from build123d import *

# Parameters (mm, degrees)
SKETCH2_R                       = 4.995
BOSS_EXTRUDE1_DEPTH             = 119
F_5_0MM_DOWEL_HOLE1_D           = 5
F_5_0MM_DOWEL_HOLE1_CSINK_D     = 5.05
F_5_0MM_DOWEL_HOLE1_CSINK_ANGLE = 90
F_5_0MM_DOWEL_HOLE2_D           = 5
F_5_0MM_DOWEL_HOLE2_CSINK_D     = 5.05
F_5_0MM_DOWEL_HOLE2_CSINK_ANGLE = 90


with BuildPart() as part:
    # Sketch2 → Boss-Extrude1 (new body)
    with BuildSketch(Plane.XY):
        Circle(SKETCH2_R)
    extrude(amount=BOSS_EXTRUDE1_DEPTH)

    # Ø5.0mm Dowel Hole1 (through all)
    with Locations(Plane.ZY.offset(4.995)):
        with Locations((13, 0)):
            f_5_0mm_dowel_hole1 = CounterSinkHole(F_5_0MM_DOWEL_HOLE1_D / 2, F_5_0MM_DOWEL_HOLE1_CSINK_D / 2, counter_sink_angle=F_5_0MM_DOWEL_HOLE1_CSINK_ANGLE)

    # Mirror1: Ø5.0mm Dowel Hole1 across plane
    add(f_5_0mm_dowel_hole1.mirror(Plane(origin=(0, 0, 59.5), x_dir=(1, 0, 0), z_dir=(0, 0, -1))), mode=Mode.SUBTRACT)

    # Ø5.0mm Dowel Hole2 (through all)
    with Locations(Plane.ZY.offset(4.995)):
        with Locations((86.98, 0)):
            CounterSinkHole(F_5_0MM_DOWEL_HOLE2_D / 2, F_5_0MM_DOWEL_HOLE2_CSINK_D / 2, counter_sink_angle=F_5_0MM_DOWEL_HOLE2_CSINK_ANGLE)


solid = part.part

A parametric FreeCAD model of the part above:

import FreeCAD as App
import Part
import Sketcher

doc = App.newDocument("Part")
body = doc.addObject("PartDesign::Body", "Body")

sketch1 = body.newObject("Sketcher::SketchObject", "Sketch")
sketch1.AttachmentSupport = (doc.getObject("XY_Plane"), [""])
sketch1.MapMode = "FlatFace"
sketch1.addGeometry(Part.Circle(App.Vector(0, 0, 0), App.Vector(0, 0, 1), 5), False)
sketch1.addConstraint(Sketcher.Constraint("Coincident", 0, 3, -1, 1))
sketch1.addConstraint(Sketcher.Constraint("Diameter", 0, 9.99))
pad1 = body.newObject("PartDesign::Pad", "Pad")
pad1.Profile = sketch1
pad1.Length = 119

sketch2 = body.newObject("Sketcher::SketchObject", "Sketch001")
sketch2.AttachmentSupport = (doc.getObject("YZ_Plane"), [""])
sketch2.MapMode = "FlatFace"
sketch2.AttachmentOffset = App.Placement(App.Vector(0, 0, -4.995), App.Rotation())
sketch2.addGeometry(Part.Circle(App.Vector(0, 13, 0), App.Vector(0, 0, 1), 2.5), False)
sketch2.addConstraint(Sketcher.Constraint("PointOnObject", 0, 3, -2))
sketch2.addConstraint(Sketcher.Constraint("Diameter", 0, 5.0))
sketch2.addConstraint(Sketcher.Constraint("DistanceY", -1, 1, 0, 3, 13.0))
doc.recompute()
hole = body.newObject("PartDesign::Hole", "Hole")
hole.Profile = sketch2
hole.ThreadType = "None"
hole.Diameter = 5
hole.DepthType = "ThroughAll"
hole.HoleCutType = "Countersink"
hole.HoleCutDiameter = 5.05
hole.HoleCutCountersinkAngle = 90
hole.Reversed = True
doc.recompute()

datumplane = body.newObject("PartDesign::Plane", "DatumPlane")
datumplane.AttachmentSupport = (doc.getObject("XY_Plane"), [""])
datumplane.MapMode = "FlatFace"
datumplane.AttachmentOffset = App.Placement(App.Vector(0, 0, 59.5), App.Rotation())
mirrored = body.newObject("PartDesign::Mirrored", "Mirrored")
mirrored.Originals = [hole]
mirrored.MirrorPlane = (datumplane, [""])
body.Tip = mirrored

sketch3 = body.newObject("Sketcher::SketchObject", "Sketch002")
sketch3.AttachmentSupport = (doc.getObject("YZ_Plane"), [""])
sketch3.MapMode = "FlatFace"
sketch3.AttachmentOffset = App.Placement(App.Vector(0, 0, -4.995), App.Rotation())
sketch3.addGeometry(Part.Circle(App.Vector(0, 87, 0), App.Vector(0, 0, 1), 2.5), False)
sketch3.addConstraint(Sketcher.Constraint("PointOnObject", 0, 3, -2))
sketch3.addConstraint(Sketcher.Constraint("Diameter", 0, 5.0))
sketch3.addConstraint(Sketcher.Constraint("DistanceY", -1, 1, 0, 3, 86.98))
doc.recompute()
hole2 = body.newObject("PartDesign::Hole", "Hole001")
hole2.Profile = sketch3
hole2.ThreadType = "None"
hole2.Diameter = 5
hole2.DepthType = "ThroughAll"
hole2.HoleCutType = "Countersink"
hole2.HoleCutDiameter = 5.05
hole2.HoleCutCountersinkAngle = 90
hole2.Reversed = True

doc.recompute()
